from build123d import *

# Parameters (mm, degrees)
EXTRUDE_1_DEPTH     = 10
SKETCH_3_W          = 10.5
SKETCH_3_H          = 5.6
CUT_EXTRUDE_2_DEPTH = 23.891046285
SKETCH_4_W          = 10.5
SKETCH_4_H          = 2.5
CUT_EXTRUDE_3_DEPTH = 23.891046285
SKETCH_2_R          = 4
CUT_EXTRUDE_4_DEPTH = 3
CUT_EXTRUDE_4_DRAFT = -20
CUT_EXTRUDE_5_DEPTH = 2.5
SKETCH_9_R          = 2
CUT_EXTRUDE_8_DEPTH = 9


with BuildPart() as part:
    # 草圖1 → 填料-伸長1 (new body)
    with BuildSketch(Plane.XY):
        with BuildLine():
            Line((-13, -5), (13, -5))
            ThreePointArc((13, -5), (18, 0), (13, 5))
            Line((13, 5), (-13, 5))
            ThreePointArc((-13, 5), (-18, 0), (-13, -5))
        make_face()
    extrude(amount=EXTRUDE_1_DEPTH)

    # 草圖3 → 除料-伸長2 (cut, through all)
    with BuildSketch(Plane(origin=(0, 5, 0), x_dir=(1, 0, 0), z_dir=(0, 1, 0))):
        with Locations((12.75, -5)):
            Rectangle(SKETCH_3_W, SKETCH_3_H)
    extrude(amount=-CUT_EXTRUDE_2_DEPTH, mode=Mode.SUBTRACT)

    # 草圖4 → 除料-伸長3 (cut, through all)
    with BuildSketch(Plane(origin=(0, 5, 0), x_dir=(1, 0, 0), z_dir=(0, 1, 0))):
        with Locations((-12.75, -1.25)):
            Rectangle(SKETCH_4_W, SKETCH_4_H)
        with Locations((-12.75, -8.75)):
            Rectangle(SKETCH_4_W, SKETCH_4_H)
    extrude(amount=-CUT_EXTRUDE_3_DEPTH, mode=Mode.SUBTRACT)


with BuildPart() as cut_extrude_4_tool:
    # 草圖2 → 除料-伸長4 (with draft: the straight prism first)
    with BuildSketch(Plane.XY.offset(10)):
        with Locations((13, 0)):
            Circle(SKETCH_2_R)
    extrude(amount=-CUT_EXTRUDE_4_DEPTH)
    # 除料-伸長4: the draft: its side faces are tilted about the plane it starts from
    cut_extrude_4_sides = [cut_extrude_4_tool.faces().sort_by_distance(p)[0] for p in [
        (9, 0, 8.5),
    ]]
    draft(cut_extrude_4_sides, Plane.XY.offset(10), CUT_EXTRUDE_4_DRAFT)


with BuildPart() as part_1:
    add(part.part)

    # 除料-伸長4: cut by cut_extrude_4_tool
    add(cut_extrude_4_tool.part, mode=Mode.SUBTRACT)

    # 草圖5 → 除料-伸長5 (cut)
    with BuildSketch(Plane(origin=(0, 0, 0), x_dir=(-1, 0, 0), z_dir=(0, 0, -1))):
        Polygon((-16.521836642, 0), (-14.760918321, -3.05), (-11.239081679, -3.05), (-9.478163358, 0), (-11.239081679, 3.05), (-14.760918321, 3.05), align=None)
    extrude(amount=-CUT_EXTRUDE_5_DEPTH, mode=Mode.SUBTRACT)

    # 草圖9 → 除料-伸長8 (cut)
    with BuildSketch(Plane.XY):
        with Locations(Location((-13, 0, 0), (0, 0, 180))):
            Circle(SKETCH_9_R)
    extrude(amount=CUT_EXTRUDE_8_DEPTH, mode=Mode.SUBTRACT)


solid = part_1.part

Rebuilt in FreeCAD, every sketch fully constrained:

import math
import FreeCAD as App
import Part
import Sketcher
from FreeCAD import Vector
Q = App.Units.Quantity


def faces_at(feature, points):
    """Names of the faces that lie closest to the given points."""
    faces = feature.Shape.Faces
    near = lambda p: min(range(len(faces)), key=lambda i: faces[i].distToShape(Part.Vertex(*p))[0])
    return sorted({f"Face{near(p) + 1}" for p in points})


def add_polygon(sketch, points):
    """Adds a closed chain of lines whose ends are joined by coincident constraints."""
    first, n = sketch.GeometryCount, len(points)
    for a, b in zip(points, points[1:] + points[:1]):
        sketch.addGeometry(Part.LineSegment(App.Vector(*a, 0), App.Vector(*b, 0)), False)
    for i in range(n):
        sketch.addConstraint(Sketcher.Constraint("Coincident", first + i, 2, first + (i + 1) % n, 1))

doc = App.newDocument("Part")
body = doc.addObject("PartDesign::Body", "Body")

sketch1 = doc.addObject("Sketcher::SketchObject", "Sketch")
body.addObject(sketch1)
sketch1.AttachmentSupport = (doc.XY_Plane, [""])
sketch1.MapMode = "FlatFace"
sketch1.addGeometry(Part.LineSegment(Vector(-13, -5, 0), Vector(13, -5, 0)), False)
sketch1.addGeometry(Part.ArcOfCircle(Part.Circle(Vector(13, 0, 0), Vector(0, 0, 1), 5), math.radians(-90), math.radians(90)), False)
sketch1.addGeometry(Part.LineSegment(Vector(13, 5, 0), Vector(-13, 5, 0)), False)
sketch1.addGeometry(Part.ArcOfCircle(Part.Circle(Vector(-13, 0, 0), Vector(0, 0, 1), 5), math.radians(90), math.radians(270)), False)
sketch1.addConstraint(Sketcher.Constraint("Tangent", 0, 2, 1, 1))
sketch1.addConstraint(Sketcher.Constraint("Tangent", 1, 2, 2, 1))
sketch1.addConstraint(Sketcher.Constraint("Tangent", 2, 2, 3, 1))
sketch1.addConstraint(Sketcher.Constraint("Tangent", 3, 2, 0, 1))
sketch1.addConstraint(Sketcher.Constraint("Horizontal", 0))
sketch1.addConstraint(Sketcher.Constraint("Horizontal", 2))
sketch1.addConstraint(Sketcher.Constraint("Symmetric", 1, 3, 3, 3, -1, 1))
sketch1.addConstraint(Sketcher.Constraint("Radius", 1, 5.0))
sketch1.addConstraint(Sketcher.Constraint("DistanceX", 0, 1, 0, 2, 26.0))
pad1 = doc.addObject("PartDesign::Pad", "Pad")
body.addObject(pad1)
pad1.Profile = sketch1
pad1.Length = 10

sketch2 = doc.addObject("Sketcher::SketchObject", "Sketch001")
body.addObject(sketch2)
sketch2.AttachmentSupport = (doc.XZ_Plane, [""])
sketch2.MapMode = "FlatFace"
sketch2.AttachmentOffset = App.Placement(Vector(0, 0, -5), App.Rotation())
add_polygon(sketch2, [(8, 2), (8, 8), (18, 8), (18, 2)])
sketch2.addConstraint(Sketcher.Constraint("Vertical", 0))
sketch2.addConstraint(Sketcher.Constraint("Horizontal", 1))
sketch2.addConstraint(Sketcher.Constraint("Vertical", 2))
sketch2.addConstraint(Sketcher.Constraint("Horizontal", 3))
sketch2.addConstraint(Sketcher.Constraint("DistanceX", 1, 1, 1, 2, 10.5))
sketch2.addConstraint(Sketcher.Constraint("DistanceY", 0, 1, 0, 2, 5.6))
sketch2.addConstraint(Sketcher.Constraint("DistanceX", -1, 1, 1, 2, 18.0))
sketch2.addConstraint(Sketcher.Constraint("DistanceY", -1, 1, 0, 2, 7.8))
pocket1 = doc.addObject("PartDesign::Pocket", "Pocket")
body.addObject(pocket1)
pocket1.Profile = sketch2
pocket1.Type = "ThroughAll"
pocket1.Reversed = True

sketch3 = doc.addObject("Sketcher::SketchObject", "Sketch002")
body.addObject(sketch3)
sketch3.AttachmentSupport = (doc.XZ_Plane, [""])
sketch3.MapMode = "FlatFace"
sketch3.AttachmentOffset = App.Placement(Vector(0, 0, -5), App.Rotation())
add_polygon(sketch3, [(-18, 0), (-18, 2.5), (-7.5, 2.5), (-7.5, 0)])
add_polygon(sketch3, [(-18, 7.5), (-18, 10), (-7.5, 10), (-7.5, 7.5)])
sketch3.addConstraint(Sketcher.Constraint("Vertical", 0))
sketch3.addConstraint(Sketcher.Constraint("Horizontal", 1))
sketch3.addConstraint(Sketcher.Constraint("Vertical", 2))
sketch3.addConstraint(Sketcher.Constraint("Horizontal", 3))
sketch3.addConstraint(Sketcher.Constraint("Vertical", 4))
sketch3.addConstraint(Sketcher.Constraint("Horizontal", 5))
sketch3.addConstraint(Sketcher.Constraint("Vertical", 6))
sketch3.addConstraint(Sketcher.Constraint("Horizontal", 7))
sketch3.addConstraint(Sketcher.Constraint("PointOnObject", 2, 2, -1))
sketch3.addConstraint(Sketcher.Constraint("Vertical", 3, 2, 4, 2))
sketch3.addConstraint(Sketcher.Constraint("Vertical", 2, 2, 5, 2))
sketch3.addConstraint(Sketcher.Constraint("Equal", 2, 4))
sketch3.addConstraint(Sketcher.Constraint("DistanceX", 1, 1, 1, 2, 10.5))
sketch3.addConstraint(Sketcher.Constraint("DistanceY", 0, 1, 0, 2, 2.5))
sketch3.addConstraint(Sketcher.Constraint("DistanceX", 0, 2, -1, 1, 18.0))
sketch3.addConstraint(Sketcher.Constraint("DistanceY", -1, 1, 4, 2, 10.0))
pocket2 = doc.addObject("PartDesign::Pocket", "Pocket001")
body.addObject(pocket2)
pocket2.Profile = sketch3
pocket2.Type = "ThroughAll"
pocket2.Reversed = True
body2 = doc.addObject("PartDesign::Body", "Body001")

sketch4 = doc.addObject("Sketcher::SketchObject", "Sketch003")
body2.addObject(sketch4)
sketch4.AttachmentSupport = (doc.getObject("XY_Plane001"), [""])
sketch4.MapMode = "FlatFace"
sketch4.AttachmentOffset = App.Placement(Vector(0, 0, 10), App.Rotation())
sketch4.addGeometry(Part.Circle(Vector(13, 0, 0), Vector(0, 0, 1), 4), False)
sketch4.addConstraint(Sketcher.Constraint("PointOnObject", 0, 3, -1))
sketch4.addConstraint(Sketcher.Constraint("Diameter", 0, 8.0))
sketch4.addConstraint(Sketcher.Constraint("DistanceX", -1, 1, 0, 3, 13.0))
pad2 = doc.addObject("PartDesign::Pad", "Pad001")
body2.addObject(pad2)
pad2.Profile = sketch4
pad2.Length = 3
pad2.Reversed = True
doc.recompute()

datumplane = doc.addObject("PartDesign::Plane", "DatumPlane")
body2.addObject(datumplane)
datumplane.AttachmentSupport = (doc.getObject("XY_Plane001"), [""])
datumplane.MapMode = "FlatFace"
datumplane.AttachmentOffset = App.Placement(Vector(0, 0, 10), App.Rotation())
draft = doc.addObject("PartDesign::Draft", "Draft")
body2.addObject(draft)
draft.Base = (pad2, faces_at(pad2, [(9, 0, 8.5)]))
draft.NeutralPlane = (datumplane, [""])
draft.Angle = 20
draft.Reversed = True
doc.recompute()

boolean = doc.addObject("PartDesign::Boolean", "Boolean")
body.addObject(boolean)
boolean.Type = "Cut"
boolean.addObjects([body2])

sketch5 = doc.addObject("Sketcher::SketchObject", "Sketch004")
body.addObject(sketch5)
sketch5.AttachmentSupport = (doc.XY_Plane, [""])
sketch5.MapMode = "FlatFace"
add_polygon(sketch5, [(16.5, 0), (14.8, -3), (11.2, -3), (9.5, 0), (11.2, 3), (14.8, 3)])
sketch5.addConstraint(Sketcher.Constraint("Horizontal", 1))
sketch5.addConstraint(Sketcher.Constraint("Horizontal", 4))
sketch5.addConstraint(Sketcher.Constraint("Symmetric", 1, 2, 3, 2, -1))
sketch5.addConstraint(Sketcher.Constraint("PointOnObject", 2, 2, -1))
sketch5.addConstraint(Sketcher.Constraint("PointOnObject", 5, 2, -1))
sketch5.addConstraint(Sketcher.Constraint("Parallel", 0, 3))
sketch5.addConstraint(Sketcher.Constraint("Parallel", 2, 5))
sketch5.addConstraint(Sketcher.Constraint("Angle", 0, Q("-120 deg")))
sketch5.addConstraint(Sketcher.Constraint("DistanceY", 1, 2, 3, 2, 6.1))
sketch5.addConstraint(Sketcher.Constraint("DistanceX", 1, 2, 1, 1, 3.521837))
sketch5.addConstraint(Sketcher.Constraint("DistanceX", -1, 1, 0, 2, 14.760918))
pocket3 = doc.addObject("PartDesign::Pocket", "Pocket002")
body.addObject(pocket3)
pocket3.Profile = sketch5
pocket3.Length = 2.5
pocket3.Reversed = True

sketch6 = doc.addObject("Sketcher::SketchObject", "Sketch005")
body.addObject(sketch6)
sketch6.AttachmentSupport = (doc.XY_Plane, [""])
sketch6.MapMode = "FlatFace"
sketch6.addGeometry(Part.Circle(Vector(-13, 0, 0), Vector(0, 0, 1), 2), False)
sketch6.addConstraint(Sketcher.Constraint("PointOnObject", 0, 3, -1))
sketch6.addConstraint(Sketcher.Constraint("Diameter", 0, 4.0))
sketch6.addConstraint(Sketcher.Constraint("DistanceX", 0, 3, -1, 1, 13.0))
pocket4 = doc.addObject("PartDesign::Pocket", "Pocket003")
body.addObject(pocket4)
pocket4.Profile = sketch6
pocket4.Length = 9
pocket4.Reversed = True

doc.recompute()
